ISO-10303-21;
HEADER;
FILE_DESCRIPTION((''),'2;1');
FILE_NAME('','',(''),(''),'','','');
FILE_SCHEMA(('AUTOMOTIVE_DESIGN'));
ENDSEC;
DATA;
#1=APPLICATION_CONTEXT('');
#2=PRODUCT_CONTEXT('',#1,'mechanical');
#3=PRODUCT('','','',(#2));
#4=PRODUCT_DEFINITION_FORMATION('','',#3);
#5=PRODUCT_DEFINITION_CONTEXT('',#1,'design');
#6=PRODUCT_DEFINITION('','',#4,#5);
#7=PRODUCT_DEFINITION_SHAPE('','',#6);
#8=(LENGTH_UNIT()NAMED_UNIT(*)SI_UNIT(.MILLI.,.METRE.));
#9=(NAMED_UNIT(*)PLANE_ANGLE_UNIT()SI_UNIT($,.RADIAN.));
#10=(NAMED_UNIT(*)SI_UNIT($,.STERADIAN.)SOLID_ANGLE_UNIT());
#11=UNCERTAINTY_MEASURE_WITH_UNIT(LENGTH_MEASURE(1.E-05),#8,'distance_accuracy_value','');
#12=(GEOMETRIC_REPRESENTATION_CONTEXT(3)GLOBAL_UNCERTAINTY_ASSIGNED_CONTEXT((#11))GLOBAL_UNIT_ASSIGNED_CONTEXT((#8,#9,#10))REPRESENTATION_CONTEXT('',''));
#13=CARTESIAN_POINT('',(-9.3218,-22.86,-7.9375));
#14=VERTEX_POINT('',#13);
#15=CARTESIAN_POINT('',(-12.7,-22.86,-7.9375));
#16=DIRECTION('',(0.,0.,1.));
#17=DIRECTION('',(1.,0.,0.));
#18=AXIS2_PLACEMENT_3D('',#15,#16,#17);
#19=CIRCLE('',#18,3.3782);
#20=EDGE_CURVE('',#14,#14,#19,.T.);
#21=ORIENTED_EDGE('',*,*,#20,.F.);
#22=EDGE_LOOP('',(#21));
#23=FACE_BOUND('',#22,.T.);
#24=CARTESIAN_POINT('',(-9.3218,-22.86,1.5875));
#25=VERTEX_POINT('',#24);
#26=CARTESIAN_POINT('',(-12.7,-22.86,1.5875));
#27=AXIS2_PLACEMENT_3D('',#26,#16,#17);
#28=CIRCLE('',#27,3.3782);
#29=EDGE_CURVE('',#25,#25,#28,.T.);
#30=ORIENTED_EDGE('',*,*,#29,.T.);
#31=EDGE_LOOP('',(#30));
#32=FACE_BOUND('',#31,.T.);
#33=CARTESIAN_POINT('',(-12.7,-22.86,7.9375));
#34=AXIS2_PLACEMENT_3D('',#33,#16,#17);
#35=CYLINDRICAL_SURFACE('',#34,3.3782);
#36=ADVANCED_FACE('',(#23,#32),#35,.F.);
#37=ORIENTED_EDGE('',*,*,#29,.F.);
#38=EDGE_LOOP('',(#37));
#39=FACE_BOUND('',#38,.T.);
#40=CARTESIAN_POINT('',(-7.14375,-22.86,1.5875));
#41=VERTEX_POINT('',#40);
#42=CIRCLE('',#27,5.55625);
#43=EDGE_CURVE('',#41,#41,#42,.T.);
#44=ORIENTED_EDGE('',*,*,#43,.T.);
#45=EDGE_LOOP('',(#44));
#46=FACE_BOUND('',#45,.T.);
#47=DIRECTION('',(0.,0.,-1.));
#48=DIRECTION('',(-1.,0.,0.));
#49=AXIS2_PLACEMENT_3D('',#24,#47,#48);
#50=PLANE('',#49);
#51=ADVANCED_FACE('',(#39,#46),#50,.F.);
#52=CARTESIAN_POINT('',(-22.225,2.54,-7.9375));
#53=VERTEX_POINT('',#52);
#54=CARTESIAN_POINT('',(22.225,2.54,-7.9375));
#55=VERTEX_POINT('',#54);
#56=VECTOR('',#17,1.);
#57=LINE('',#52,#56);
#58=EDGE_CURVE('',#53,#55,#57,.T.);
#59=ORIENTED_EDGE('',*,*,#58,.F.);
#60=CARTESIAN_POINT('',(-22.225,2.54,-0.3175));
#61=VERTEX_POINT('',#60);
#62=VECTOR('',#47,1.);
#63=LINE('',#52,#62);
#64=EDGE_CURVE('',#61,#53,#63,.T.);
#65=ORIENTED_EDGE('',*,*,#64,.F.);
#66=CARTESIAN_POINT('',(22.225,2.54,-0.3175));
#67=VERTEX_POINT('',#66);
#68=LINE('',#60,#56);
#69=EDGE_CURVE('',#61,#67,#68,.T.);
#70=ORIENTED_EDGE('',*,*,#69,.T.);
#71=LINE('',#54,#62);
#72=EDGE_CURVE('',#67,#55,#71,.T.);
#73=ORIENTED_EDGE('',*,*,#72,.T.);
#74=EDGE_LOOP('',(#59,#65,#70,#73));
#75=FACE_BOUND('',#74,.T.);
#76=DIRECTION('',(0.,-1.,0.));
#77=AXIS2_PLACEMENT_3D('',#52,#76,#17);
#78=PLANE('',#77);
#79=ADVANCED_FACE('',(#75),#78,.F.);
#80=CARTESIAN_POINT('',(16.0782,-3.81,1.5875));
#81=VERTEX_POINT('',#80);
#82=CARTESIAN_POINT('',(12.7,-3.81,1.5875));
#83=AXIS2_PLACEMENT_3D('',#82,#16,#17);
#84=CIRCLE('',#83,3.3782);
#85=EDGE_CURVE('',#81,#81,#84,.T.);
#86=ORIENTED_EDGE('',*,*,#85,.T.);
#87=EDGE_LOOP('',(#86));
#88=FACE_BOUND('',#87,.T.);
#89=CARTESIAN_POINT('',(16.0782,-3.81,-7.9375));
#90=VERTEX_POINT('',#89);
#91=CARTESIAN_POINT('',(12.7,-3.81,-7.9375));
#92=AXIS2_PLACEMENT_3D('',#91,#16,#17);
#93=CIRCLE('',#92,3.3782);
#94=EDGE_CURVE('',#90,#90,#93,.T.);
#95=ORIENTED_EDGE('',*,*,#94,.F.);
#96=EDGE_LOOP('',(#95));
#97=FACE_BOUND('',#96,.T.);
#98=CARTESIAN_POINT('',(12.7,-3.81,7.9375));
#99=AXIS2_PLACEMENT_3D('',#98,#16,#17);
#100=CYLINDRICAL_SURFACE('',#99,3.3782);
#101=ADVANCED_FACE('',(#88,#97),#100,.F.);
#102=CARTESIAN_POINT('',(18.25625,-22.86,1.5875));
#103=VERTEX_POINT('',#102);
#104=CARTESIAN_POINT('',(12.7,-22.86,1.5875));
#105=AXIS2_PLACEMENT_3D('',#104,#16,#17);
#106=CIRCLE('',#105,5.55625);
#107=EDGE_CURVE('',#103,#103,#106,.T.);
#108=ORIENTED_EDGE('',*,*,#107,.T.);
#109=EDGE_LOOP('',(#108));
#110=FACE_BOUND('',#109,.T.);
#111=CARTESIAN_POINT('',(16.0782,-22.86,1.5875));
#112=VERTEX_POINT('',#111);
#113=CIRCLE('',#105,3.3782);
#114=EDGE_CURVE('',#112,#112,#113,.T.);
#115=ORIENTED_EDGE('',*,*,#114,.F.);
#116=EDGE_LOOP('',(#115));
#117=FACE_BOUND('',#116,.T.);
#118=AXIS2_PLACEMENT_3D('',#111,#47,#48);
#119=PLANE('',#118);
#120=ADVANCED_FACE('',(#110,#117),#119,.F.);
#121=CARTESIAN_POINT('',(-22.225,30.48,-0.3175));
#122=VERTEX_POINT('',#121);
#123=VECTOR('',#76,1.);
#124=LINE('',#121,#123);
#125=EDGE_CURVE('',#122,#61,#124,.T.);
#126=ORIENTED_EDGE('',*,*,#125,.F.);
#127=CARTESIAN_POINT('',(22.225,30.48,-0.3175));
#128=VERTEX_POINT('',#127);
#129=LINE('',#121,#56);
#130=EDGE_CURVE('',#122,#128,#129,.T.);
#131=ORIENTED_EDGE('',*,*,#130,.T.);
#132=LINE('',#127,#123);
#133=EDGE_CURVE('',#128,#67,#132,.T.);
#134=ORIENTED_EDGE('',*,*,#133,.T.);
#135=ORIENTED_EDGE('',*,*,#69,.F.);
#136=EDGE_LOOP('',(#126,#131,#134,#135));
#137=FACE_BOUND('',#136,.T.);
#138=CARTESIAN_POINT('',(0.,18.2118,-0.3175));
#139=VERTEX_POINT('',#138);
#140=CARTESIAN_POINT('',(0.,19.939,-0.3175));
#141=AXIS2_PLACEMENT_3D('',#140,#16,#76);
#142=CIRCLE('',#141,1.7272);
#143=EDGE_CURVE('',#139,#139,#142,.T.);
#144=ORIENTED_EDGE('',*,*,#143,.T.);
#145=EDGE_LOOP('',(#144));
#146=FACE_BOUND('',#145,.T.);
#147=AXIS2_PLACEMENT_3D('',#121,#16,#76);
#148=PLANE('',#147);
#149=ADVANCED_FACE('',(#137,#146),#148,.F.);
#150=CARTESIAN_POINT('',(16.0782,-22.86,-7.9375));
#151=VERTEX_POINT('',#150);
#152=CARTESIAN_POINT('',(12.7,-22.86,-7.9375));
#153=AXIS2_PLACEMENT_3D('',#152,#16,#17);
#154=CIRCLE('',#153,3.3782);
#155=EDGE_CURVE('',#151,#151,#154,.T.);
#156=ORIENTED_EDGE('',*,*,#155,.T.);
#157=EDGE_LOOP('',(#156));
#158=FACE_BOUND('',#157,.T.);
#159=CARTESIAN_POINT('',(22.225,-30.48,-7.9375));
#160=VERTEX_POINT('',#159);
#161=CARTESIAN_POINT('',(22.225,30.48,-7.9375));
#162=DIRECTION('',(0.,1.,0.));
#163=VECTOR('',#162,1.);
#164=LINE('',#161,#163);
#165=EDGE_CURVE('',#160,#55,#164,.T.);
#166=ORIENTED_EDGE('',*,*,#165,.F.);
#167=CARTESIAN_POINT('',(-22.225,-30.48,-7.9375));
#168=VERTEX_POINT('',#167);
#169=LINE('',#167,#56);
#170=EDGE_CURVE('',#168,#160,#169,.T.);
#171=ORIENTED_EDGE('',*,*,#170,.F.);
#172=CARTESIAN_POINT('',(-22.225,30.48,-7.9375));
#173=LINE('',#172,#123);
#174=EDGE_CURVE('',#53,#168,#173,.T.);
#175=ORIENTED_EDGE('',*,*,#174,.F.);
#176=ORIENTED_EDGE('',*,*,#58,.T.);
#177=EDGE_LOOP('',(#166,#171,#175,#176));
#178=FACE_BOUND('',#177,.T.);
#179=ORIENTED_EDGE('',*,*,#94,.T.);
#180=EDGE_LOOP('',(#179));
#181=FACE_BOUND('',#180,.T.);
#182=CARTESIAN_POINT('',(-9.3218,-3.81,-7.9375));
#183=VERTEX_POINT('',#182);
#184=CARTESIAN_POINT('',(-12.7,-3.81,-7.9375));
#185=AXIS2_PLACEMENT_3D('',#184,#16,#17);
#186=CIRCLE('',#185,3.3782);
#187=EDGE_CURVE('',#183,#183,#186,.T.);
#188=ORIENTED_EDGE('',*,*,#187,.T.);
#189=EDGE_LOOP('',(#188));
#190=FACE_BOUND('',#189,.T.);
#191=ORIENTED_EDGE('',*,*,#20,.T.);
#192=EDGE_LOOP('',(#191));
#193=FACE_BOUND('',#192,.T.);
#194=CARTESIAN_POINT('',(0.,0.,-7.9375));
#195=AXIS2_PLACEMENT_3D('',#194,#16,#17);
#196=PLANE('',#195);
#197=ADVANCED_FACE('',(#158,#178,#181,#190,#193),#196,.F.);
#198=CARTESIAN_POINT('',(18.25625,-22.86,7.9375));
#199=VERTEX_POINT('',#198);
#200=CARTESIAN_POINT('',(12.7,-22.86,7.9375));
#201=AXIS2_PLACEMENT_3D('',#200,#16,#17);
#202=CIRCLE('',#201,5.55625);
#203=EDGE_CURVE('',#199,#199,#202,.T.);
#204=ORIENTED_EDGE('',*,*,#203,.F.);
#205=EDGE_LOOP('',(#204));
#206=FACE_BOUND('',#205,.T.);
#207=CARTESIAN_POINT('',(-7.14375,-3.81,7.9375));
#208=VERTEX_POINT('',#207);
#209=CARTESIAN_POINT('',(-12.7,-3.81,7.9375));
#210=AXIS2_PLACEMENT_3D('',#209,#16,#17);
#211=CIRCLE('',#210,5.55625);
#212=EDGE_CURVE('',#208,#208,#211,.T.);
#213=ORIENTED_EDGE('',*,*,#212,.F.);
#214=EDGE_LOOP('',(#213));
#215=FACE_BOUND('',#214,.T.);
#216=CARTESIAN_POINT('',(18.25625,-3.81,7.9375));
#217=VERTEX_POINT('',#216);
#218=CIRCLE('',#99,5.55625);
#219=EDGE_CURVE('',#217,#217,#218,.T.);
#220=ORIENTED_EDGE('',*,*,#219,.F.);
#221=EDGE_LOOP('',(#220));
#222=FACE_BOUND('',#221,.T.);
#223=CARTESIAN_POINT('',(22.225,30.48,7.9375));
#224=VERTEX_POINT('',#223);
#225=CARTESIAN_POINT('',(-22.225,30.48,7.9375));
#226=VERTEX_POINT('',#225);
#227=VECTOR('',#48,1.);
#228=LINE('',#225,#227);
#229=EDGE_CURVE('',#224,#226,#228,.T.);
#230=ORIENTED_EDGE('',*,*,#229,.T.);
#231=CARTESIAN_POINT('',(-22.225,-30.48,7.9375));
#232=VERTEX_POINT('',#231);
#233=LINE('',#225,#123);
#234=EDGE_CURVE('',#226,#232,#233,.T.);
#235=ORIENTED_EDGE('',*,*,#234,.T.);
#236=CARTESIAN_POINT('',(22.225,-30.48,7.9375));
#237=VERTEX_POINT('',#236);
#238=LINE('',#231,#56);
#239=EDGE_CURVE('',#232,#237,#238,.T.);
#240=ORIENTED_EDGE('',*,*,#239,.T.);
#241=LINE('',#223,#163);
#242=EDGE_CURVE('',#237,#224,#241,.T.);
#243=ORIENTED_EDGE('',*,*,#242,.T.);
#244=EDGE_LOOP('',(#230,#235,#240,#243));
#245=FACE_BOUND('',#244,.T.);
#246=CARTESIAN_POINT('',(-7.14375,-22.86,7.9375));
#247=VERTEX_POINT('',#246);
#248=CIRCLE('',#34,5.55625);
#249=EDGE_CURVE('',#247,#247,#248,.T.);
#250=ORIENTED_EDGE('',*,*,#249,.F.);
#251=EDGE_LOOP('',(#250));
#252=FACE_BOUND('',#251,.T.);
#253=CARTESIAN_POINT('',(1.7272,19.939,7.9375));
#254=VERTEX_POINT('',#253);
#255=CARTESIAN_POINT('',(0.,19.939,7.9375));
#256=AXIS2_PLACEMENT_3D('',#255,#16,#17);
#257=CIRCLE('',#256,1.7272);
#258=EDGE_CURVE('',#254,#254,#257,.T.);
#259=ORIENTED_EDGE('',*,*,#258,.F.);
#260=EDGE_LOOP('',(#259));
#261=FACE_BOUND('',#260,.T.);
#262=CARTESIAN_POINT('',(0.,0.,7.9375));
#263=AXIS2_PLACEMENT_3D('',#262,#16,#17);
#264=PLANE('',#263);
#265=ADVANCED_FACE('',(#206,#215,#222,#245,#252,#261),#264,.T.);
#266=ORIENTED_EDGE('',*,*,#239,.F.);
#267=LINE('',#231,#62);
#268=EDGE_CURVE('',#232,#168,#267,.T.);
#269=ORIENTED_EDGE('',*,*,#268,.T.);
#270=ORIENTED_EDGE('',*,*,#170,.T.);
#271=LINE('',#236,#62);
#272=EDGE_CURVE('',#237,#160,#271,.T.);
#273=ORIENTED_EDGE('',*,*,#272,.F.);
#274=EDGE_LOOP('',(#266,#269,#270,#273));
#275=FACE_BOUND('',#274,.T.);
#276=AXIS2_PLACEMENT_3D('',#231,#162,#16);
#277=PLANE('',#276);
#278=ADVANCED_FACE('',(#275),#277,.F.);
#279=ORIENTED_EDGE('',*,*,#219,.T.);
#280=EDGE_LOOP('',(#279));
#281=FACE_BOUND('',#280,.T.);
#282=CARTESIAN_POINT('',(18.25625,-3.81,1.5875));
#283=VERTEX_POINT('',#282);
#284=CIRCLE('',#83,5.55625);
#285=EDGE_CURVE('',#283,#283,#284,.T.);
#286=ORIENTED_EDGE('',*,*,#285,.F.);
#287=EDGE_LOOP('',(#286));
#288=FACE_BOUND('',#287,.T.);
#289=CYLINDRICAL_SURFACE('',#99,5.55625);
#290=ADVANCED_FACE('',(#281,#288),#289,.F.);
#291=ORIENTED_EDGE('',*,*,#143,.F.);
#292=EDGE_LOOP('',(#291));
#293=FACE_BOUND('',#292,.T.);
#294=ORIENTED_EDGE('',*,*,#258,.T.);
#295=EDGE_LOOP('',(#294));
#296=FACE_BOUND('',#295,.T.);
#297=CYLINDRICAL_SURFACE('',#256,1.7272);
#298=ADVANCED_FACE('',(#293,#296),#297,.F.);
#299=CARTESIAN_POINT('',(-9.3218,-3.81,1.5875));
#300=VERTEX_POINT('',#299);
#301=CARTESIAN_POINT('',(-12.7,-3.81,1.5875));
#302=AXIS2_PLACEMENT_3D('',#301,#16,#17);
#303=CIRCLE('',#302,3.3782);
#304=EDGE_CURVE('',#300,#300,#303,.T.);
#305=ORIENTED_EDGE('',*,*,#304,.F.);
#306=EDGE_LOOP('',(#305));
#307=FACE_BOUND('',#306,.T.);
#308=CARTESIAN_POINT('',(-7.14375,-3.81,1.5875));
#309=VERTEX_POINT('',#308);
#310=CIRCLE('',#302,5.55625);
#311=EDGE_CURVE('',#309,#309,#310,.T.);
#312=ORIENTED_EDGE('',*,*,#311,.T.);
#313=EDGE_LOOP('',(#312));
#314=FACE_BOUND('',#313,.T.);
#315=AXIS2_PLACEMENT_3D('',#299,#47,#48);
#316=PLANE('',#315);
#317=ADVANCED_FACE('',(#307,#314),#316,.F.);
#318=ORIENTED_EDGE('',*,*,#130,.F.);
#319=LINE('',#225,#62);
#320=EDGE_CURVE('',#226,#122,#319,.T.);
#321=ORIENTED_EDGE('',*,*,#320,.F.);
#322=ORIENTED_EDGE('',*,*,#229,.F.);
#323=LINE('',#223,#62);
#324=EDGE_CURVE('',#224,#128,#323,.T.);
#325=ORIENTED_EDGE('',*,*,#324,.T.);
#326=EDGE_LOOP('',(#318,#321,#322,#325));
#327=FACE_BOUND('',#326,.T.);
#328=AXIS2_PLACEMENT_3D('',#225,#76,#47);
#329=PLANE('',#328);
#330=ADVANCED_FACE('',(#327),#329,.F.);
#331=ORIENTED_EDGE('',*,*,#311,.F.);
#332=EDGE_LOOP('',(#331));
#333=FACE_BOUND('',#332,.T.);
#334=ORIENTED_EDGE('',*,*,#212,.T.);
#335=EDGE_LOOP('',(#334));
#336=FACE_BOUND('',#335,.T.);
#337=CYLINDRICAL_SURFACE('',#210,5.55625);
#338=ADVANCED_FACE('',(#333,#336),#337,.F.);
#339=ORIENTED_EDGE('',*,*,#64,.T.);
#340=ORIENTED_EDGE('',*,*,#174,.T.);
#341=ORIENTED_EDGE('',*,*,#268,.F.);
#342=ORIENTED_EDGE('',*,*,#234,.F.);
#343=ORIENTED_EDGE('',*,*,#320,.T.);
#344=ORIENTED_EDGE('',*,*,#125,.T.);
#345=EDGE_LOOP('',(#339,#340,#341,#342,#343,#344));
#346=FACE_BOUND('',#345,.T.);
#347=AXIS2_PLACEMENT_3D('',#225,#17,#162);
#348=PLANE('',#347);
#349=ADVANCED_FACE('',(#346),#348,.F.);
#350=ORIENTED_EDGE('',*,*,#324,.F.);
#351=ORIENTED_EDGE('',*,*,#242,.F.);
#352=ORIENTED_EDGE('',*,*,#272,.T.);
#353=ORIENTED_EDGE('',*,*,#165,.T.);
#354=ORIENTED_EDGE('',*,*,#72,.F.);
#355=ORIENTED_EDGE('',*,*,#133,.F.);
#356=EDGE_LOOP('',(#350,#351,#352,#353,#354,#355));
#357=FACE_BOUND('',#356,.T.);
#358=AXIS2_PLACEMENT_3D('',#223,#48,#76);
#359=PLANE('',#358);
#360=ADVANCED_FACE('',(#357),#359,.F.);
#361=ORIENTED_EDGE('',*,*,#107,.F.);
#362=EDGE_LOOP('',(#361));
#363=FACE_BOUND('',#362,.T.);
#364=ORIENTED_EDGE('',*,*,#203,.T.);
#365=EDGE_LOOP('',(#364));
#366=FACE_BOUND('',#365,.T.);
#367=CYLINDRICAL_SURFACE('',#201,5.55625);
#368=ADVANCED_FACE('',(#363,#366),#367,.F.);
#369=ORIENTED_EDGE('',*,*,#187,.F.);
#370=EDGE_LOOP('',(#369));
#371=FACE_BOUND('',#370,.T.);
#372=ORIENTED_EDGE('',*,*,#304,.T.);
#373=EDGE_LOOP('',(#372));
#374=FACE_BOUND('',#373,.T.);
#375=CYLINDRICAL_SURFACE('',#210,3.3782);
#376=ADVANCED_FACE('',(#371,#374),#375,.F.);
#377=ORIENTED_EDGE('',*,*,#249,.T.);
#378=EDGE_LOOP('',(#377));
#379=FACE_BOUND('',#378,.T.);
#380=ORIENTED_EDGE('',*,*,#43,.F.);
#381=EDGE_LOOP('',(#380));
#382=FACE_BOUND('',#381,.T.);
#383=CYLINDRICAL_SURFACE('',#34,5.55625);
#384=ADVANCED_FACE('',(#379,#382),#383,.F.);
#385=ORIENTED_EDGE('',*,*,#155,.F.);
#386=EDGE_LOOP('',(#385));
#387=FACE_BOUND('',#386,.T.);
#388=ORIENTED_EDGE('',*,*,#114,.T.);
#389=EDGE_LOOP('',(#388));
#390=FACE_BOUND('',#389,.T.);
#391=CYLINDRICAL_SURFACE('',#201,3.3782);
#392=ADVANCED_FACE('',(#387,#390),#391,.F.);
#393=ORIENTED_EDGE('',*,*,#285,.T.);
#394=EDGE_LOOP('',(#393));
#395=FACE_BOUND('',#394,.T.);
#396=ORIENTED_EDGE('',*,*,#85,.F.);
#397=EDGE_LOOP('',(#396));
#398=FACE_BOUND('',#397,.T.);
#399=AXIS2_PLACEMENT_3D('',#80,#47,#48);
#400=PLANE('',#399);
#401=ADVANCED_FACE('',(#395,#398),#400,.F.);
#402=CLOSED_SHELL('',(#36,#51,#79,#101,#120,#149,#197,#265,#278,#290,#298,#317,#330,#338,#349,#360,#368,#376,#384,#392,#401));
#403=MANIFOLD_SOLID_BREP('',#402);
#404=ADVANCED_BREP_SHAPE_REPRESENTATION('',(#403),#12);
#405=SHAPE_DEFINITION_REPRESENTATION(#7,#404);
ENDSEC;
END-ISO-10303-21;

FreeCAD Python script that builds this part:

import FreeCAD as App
import Part
import Sketcher
Q = App.Units.Quantity


def add_polygon(sketch, points):
    """Adds a closed chain of lines whose ends are joined by coincident constraints."""
    first, n = sketch.GeometryCount, len(points)
    for a, b in zip(points, points[1:] + points[:1]):
        sketch.addGeometry(Part.LineSegment(App.Vector(*a, 0), App.Vector(*b, 0)), False)
    for i in range(n):
        sketch.addConstraint(Sketcher.Constraint("Coincident", first + i, 2, first + (i + 1) % n, 1))

doc = App.newDocument("Part")
body = doc.addObject("PartDesign::Body", "Body")

# Sketch on XY plane
sketch1 = body.newObject("Sketcher::SketchObject", "Sketch")
sketch1.AttachmentSupport = (doc.getObject("XY_Plane"), [""])
sketch1.MapMode = "FlatFace"
add_polygon(sketch1, [(-22.225, 30.48), (-22.225, -30.48), (22.225, -30.48), (22.225, 30.48)])  # lines 0-3
sketch1.addConstraint([
    Sketcher.Constraint("Vertical", 0),
    Sketcher.Constraint("Horizontal", 1),
    Sketcher.Constraint("Vertical", 2),
    Sketcher.Constraint("Horizontal", 3),
    Sketcher.Constraint("Symmetric", 0, 2, 2, 2, -1, 1),
    Sketcher.Constraint("DistanceY", 0, 2, 0, 1, Q("2.4 in")),
    Sketcher.Constraint("DistanceX", 1, 1, 1, 2, Q("1.75 in")),
])
pad1 = body.newObject("PartDesign::Pad", "Pad")
pad1.Profile = sketch1
pad1.Length = Q("0.625 in")
pad1.Midplane = True

# Sketch on XY plane
sketch2 = body.newObject("Sketcher::SketchObject", "Sketch001")
sketch2.AttachmentSupport = (doc.getObject("XY_Plane"), [""])
sketch2.MapMode = "FlatFace"
sketch2.AttachmentOffset = App.Placement(App.Vector(0, 0, 0.3125 * 25.4), App.Rotation())
sketch2.addGeometry([
    Part.Circle(App.Vector(-12.7, -3.81, 0), App.Vector(0, 0, 1), 3.3782),
    Part.Circle(App.Vector(12.7, -3.81, 0), App.Vector(0, 0, 1), 3.3782),
    Part.Circle(App.Vector(12.7, -22.86, 0), App.Vector(0, 0, 1), 3.3782),
    Part.Circle(App.Vector(-12.7, -22.86, 0), App.Vector(0, 0, 1), 3.3782),
], False)
sketch2.addConstraint([
    Sketcher.Constraint("Equal", 0, 1),
    Sketcher.Constraint("Equal", 1, 2),
    Sketcher.Constraint("Equal", 2, 3),
    Sketcher.Constraint("Symmetric", 0, 3, 1, 3, -2),
    Sketcher.Constraint("Symmetric", 2, 3, 3, 3, -2),
    Sketcher.Constraint("Vertical", 1, 3, 2, 3),
    Sketcher.Constraint("Diameter", 0, Q("0.266 in")),
    Sketcher.Constraint("DistanceX", 0, 3, 1, 3, Q("1 in")),
    Sketcher.Constraint("DistanceY", 2, 3, -1, 1, Q("0.9 in")),
    Sketcher.Constraint("DistanceY", 0, 3, -1, 1, Q("0.15 in")),
])
doc.recompute()
hole = body.newObject("PartDesign::Hole", "Hole")
hole.Profile = sketch2
hole.ThreadType = "None"
hole.Diameter = Q("0.266 in")
hole.DepthType = "ThroughAll"
hole.HoleCutType = "Counterbore"
hole.HoleCutDiameter = Q("0.4375 in")
hole.HoleCutDepth = Q("0.25 in")

# Sketch on YZ plane
sketch3 = body.newObject("Sketcher::SketchObject", "Sketch002")
sketch3.AttachmentSupport = (doc.getObject("YZ_Plane"), [""])
sketch3.MapMode = "FlatFace"
sketch3.AttachmentOffset = App.Placement(App.Vector(0, 0, 0.875 * 25.4), App.Rotation())
add_polygon(sketch3, [(30.48, -0.3175), (2.54, -0.3175), (2.54, -7.9375), (30.48, -7.9375)])  # lines 0-3
sketch3.addConstraint([
    Sketcher.Constraint("Horizontal", 0),
    Sketcher.Constraint("Vertical", 1),
    Sketcher.Constraint("Horizontal", 2),
    Sketcher.Constraint("Vertical", 3),
    Sketcher.Constraint("DistanceX", 0, 2, 0, 1, Q("1.1 in")),
    Sketcher.Constraint("DistanceY", 1, 2, 1, 1, Q("0.3 in")),
    Sketcher.Constraint("DistanceX", -1, 1, 0, 2, Q("0.1 in")),
    Sketcher.Constraint("DistanceY", 1, 2, -1, 1, Q("0.3125 in")),
])
pocket1 = body.newObject("PartDesign::Pocket", "Pocket")
pocket1.Profile = sketch3
pocket1.Type = "ThroughAll"

# Sketch on XY plane
sketch4 = body.newObject("Sketcher::SketchObject", "Sketch003")
sketch4.AttachmentSupport = (doc.getObject("XY_Plane"), [""])
sketch4.MapMode = "FlatFace"
sketch4.AttachmentOffset = App.Placement(App.Vector(0, 0, 0.3125 * 25.4), App.Rotation())
sketch4.addGeometry(Part.Circle(App.Vector(0, 19.939, 0), App.Vector(0, 0, 1), 1.7272), False)
sketch4.addConstraint([
    Sketcher.Constraint("PointOnObject", 0, 3, -2),
    Sketcher.Constraint("Diameter", 0, Q("0.136 in")),
    Sketcher.Constraint("DistanceY", -1, 1, 0, 3, Q("0.785 in")),
])
doc.recompute()
hole2 = body.newObject("PartDesign::Hole", "Hole001")
hole2.Profile = sketch4
hole2.ThreadType = "None"
hole2.Diameter = Q("0.136 in")
hole2.DepthType = "ThroughAll"

doc.recompute()
